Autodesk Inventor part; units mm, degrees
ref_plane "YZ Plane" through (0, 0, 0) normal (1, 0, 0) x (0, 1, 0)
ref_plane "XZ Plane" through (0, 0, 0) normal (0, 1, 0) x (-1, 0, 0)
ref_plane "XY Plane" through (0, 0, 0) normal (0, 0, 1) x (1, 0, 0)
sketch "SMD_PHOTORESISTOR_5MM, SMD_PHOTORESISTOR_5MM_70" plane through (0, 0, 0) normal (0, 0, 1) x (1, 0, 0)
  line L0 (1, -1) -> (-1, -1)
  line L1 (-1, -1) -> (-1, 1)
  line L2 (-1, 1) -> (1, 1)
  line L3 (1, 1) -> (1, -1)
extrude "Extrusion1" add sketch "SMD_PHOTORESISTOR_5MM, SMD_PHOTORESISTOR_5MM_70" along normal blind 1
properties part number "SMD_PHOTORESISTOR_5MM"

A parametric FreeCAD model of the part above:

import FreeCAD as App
import Part
import Sketcher


def add_polygon(sketch, points):
    """Adds a closed chain of lines whose ends are joined by coincident constraints."""
    first, n = sketch.GeometryCount, len(points)
    for a, b in zip(points, points[1:] + points[:1]):
        sketch.addGeometry(Part.LineSegment(App.Vector(*a, 0), App.Vector(*b, 0)), False)
    for i in range(n):
        sketch.addConstraint(Sketcher.Constraint("Coincident", first + i, 2, first + (i + 1) % n, 1))

doc = App.newDocument("Part")
body = doc.addObject("PartDesign::Body", "Body")

# Sketch on XY plane
sketch1 = body.newObject("Sketcher::SketchObject", "Sketch")
sketch1.AttachmentSupport = (doc.getObject("XY_Plane"), [""])
sketch1.MapMode = "FlatFace"
add_polygon(sketch1, [(-1, -1), (1, -1), (1, 1), (-1, 1)])  # lines 0-3
sketch1.addConstraint(Sketcher.Constraint("Horizontal", 0))
sketch1.addConstraint(Sketcher.Constraint("Vertical", 1))
sketch1.addConstraint(Sketcher.Constraint("Horizontal", 2))
sketch1.addConstraint(Sketcher.Constraint("Vertical", 3))
sketch1.addConstraint(Sketcher.Constraint("Symmetric", 0, 2, 2, 2, -1, 1))
sketch1.addConstraint(Sketcher.Constraint("Equal", 2, 1))
sketch1.addConstraint(Sketcher.Constraint("DistanceX", 0, 1, 0, 2, 2.0))
pad1 = body.newObject("PartDesign::Pad", "Pad")
pad1.Profile = sketch1
pad1.Length = 1

doc.recompute()
